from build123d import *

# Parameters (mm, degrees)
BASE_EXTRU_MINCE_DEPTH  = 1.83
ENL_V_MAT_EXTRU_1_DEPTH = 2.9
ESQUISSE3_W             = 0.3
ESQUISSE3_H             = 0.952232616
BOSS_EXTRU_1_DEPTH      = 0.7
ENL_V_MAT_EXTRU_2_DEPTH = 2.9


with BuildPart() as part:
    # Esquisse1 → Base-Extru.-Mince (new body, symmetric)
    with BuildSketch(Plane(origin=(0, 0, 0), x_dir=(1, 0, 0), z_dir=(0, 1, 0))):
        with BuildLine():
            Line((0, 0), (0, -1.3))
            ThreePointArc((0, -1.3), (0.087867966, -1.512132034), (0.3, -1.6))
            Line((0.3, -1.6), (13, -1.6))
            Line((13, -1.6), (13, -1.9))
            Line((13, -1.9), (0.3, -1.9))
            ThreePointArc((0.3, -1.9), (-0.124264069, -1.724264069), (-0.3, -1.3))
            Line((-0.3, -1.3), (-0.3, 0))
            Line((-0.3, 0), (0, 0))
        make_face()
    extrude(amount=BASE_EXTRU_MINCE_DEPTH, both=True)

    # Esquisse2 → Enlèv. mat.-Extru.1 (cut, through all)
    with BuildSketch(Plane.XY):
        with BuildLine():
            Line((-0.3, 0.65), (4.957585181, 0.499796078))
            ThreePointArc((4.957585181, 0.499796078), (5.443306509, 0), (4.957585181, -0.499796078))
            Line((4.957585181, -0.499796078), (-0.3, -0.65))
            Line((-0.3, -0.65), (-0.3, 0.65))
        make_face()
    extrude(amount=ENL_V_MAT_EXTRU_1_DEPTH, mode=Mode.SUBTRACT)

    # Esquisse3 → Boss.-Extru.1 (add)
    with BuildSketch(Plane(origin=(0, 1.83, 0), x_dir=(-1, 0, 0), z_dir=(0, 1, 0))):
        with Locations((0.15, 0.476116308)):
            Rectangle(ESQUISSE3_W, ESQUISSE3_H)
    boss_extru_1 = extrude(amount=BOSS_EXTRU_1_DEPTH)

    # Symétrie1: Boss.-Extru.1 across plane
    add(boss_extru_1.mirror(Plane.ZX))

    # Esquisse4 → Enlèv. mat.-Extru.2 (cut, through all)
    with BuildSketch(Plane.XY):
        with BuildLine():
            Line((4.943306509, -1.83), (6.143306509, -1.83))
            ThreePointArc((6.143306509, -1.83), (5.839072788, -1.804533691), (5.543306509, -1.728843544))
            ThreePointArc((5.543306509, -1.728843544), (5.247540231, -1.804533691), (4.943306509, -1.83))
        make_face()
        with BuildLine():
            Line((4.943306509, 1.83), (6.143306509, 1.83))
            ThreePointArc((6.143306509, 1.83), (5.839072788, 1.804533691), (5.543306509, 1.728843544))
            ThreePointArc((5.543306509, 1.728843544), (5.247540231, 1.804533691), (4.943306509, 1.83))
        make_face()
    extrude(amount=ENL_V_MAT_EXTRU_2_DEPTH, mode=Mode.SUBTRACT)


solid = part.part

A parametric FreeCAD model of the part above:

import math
import FreeCAD as App
import Part
import Sketcher
from FreeCAD import Vector


def add_polygon(sketch, points):
    """Adds a closed chain of lines whose ends are joined by coincident constraints."""
    first, n = sketch.GeometryCount, len(points)
    for a, b in zip(points, points[1:] + points[:1]):
        sketch.addGeometry(Part.LineSegment(App.Vector(*a, 0), App.Vector(*b, 0)), False)
    for i in range(n):
        sketch.addConstraint(Sketcher.Constraint("Coincident", first + i, 2, first + (i + 1) % n, 1))

doc = App.newDocument("Part")
body = doc.addObject("PartDesign::Body", "Body")

# Sketch on XZ plane
sketch1 = doc.addObject("Sketcher::SketchObject", "Sketch")
body.addObject(sketch1)
sketch1.AttachmentSupport = (doc.XZ_Plane, [""])
sketch1.MapMode = "FlatFace"
sketch1.addGeometry([
    Part.LineSegment(Vector(0, 1.3, 0), Vector(0, 0, 0)),  # 0
    Part.LineSegment(Vector(0, 0, 0), Vector(-0.3, 0, 0)),  # 1
    Part.LineSegment(Vector(-0.3, 0, 0), Vector(-0.3, 1.3, 0)),  # 2
    Part.ArcOfCircle(Part.Circle(Vector(0.3, 1.3, 0), Vector(0, 0, 1), 0.6), math.radians(90), math.radians(180)),  # 3
    Part.LineSegment(Vector(0.3, 1.9, 0), Vector(13, 1.9, 0)),  # 4
    Part.LineSegment(Vector(13, 1.9, 0), Vector(13, 1.6, 0)),  # 5
    Part.LineSegment(Vector(13, 1.6, 0), Vector(0.3, 1.6, 0)),  # 6
    Part.ArcOfCircle(Part.Circle(Vector(0.3, 1.3, 0), Vector(0, 0, 1), 0.3), math.radians(90), math.radians(180)),  # 7
], False)
sketch1.addConstraint([
    Sketcher.Constraint("Coincident", 0, 2, 1, 1),
    Sketcher.Constraint("Coincident", 1, 2, 2, 1),
    Sketcher.Constraint("Tangent", 2, 2, 3, 2),
    Sketcher.Constraint("Tangent", 3, 1, 4, 1),
    Sketcher.Constraint("Coincident", 4, 2, 5, 1),
    Sketcher.Constraint("Coincident", 5, 2, 6, 1),
    Sketcher.Constraint("Tangent", 6, 2, 7, 1),
    Sketcher.Constraint("Tangent", 7, 2, 0, 1),
    Sketcher.Constraint("Vertical", 0),
    Sketcher.Constraint("Horizontal", 1),
    Sketcher.Constraint("Vertical", 2),
    Sketcher.Constraint("Horizontal", 4),
    Sketcher.Constraint("Vertical", 5),
    Sketcher.Constraint("Horizontal", 6),
    Sketcher.Constraint("Coincident", 0, 2, -1, 1),
    Sketcher.Constraint("Coincident", 7, 3, 3, 3),
    Sketcher.Constraint("Radius", 3, 0.6),
    Sketcher.Constraint("Radius", 7, 0.3),
    Sketcher.Constraint("DistanceX", 4, 1, 4, 2, 12.7),
    Sketcher.Constraint("DistanceY", 0, 2, 0, 1, 1.3),
])
pad1 = doc.addObject("PartDesign::Pad", "Pad")
body.addObject(pad1)
pad1.Profile = sketch1
pad1.Length = 3.66
pad1.Midplane = True

# Sketch on XY plane
sketch2 = doc.addObject("Sketcher::SketchObject", "Sketch001")
body.addObject(sketch2)
sketch2.AttachmentSupport = (doc.XY_Plane, [""])
sketch2.MapMode = "FlatFace"
sketch2.addGeometry([
    Part.LineSegment(Vector(5, 0.5, 0), Vector(-0.3, 0.7, 0)),
    Part.LineSegment(Vector(-0.3, 0.7, 0), Vector(-0.3, -0.7, 0)),
    Part.LineSegment(Vector(-0.3, -0.7, 0), Vector(5, -0.5, 0)),
    Part.ArcOfCircle(Part.Circle(Vector(4.9, 0, 0), Vector(0, 0, 1), 0.5), math.radians(-88), math.radians(88)),
], False)
sketch2.addConstraint([
    Sketcher.Constraint("Coincident", 0, 2, 1, 1),
    Sketcher.Constraint("Coincident", 1, 2, 2, 1),
    Sketcher.Constraint("Tangent", 2, 2, 3, 1),
    Sketcher.Constraint("Tangent", 3, 2, 0, 1),
    Sketcher.Constraint("Vertical", 1),
    Sketcher.Constraint("Symmetric", 2, 2, 3, 2, -1),
    Sketcher.Constraint("Radius", 3, 0.5),
    Sketcher.Constraint("DistanceY", 1, 2, 1, 1, 1.3),
    Sketcher.Constraint("DistanceX", 0, 2, -1, 1, 0.3),
    Sketcher.Constraint("Distance", 0, 5.25973),
])
pocket1 = doc.addObject("PartDesign::Pocket", "Pocket")
body.addObject(pocket1)
pocket1.Profile = sketch2
pocket1.Type = "ThroughAll"
pocket1.Reversed = True

# Sketch on XZ plane
sketch3 = doc.addObject("Sketcher::SketchObject", "Sketch002")
body.addObject(sketch3)
sketch3.AttachmentSupport = (doc.XZ_Plane, [""])
sketch3.MapMode = "FlatFace"
sketch3.AttachmentOffset = App.Placement(Vector(0, 0, -1.83), App.Rotation())
add_polygon(sketch3, [(0, 0.95), (0, 0), (-0.3, 0), (-0.3, 0.95)])  # lines 0-3
sketch3.addConstraint([
    Sketcher.Constraint("Vertical", 0),
    Sketcher.Constraint("Horizontal", 1),
    Sketcher.Constraint("Vertical", 2),
    Sketcher.Constraint("Horizontal", 3),
    Sketcher.Constraint("Coincident", 0, 2, -1, 1),
    Sketcher.Constraint("DistanceX", 1, 2, 1, 1, 0.3),
    Sketcher.Constraint("DistanceY", 0, 2, 0, 1, 0.952233),
])
pad2 = doc.addObject("PartDesign::Pad", "Pad001")
body.addObject(pad2)
pad2.Profile = sketch3
pad2.Length = 0.7
pad2.Reversed = True
doc.recompute()

mirrored = doc.addObject("PartDesign::Mirrored", "Mirrored")
body.addObject(mirrored)
mirrored.Originals = [pad2]
mirrored.MirrorPlane = (doc.XZ_Plane, [""])
body.Tip = mirrored

# Sketch on XY plane
sketch4 = doc.addObject("Sketcher::SketchObject", "Sketch003")
body.addObject(sketch4)
sketch4.AttachmentSupport = (doc.XY_Plane, [""])
sketch4.MapMode = "FlatFace"
sketch4.addGeometry([
    Part.LineSegment(Vector(4.9, -1.8, 0), Vector(6.1, -1.8, 0)),  # 0
    Part.ArcOfCircle(Part.Circle(Vector(6.1, 0, 0), Vector(0, 0, 1), 1.8), math.radians(-109.14), math.radians(-90)),  # 1
    Part.ArcOfCircle(Part.Circle(Vector(4.9, 0, 0), Vector(0, 0, 1), 1.8), math.radians(-90), math.radians(-70.86)),  # 2
    Part.LineSegment(Vector(6.1, 1.8, 0), Vector(4.9, 1.8, 0)),  # 3
    Part.ArcOfCircle(Part.Circle(Vector(4.9, 0, 0), Vector(0, 0, 1), 1.8), math.radians(70.86), math.radians(90)),  # 4
    Part.ArcOfCircle(Part.Circle(Vector(6.1, 0, 0), Vector(0, 0, 1), 1.8), math.radians(90), math.radians(109.14)),  # 5
], False)
sketch4.addConstraint([
    Sketcher.Constraint("Tangent", 0, 2, 1, 2),
    Sketcher.Constraint("Coincident", 1, 1, 2, 2),
    Sketcher.Constraint("Tangent", 2, 1, 0, 1),
    Sketcher.Constraint("Tangent", 3, 2, 4, 2),
    Sketcher.Constraint("Coincident", 4, 1, 5, 2),
    Sketcher.Constraint("Tangent", 5, 1, 3, 1),
    Sketcher.Constraint("Horizontal", 0),
    Sketcher.Constraint("Horizontal", 3),
    Sketcher.Constraint("Coincident", 4, 3, 2, 3),
    Sketcher.Constraint("Coincident", 5, 3, 1, 3),
    Sketcher.Constraint("Equal", 1, 2),
    Sketcher.Constraint("Equal", 2, 4),
    Sketcher.Constraint("PointOnObject", 1, 3, -1),
    Sketcher.Constraint("Radius", 1, 1.83),
    Sketcher.Constraint("DistanceX", 0, 1, 0, 2, 1.2),
    Sketcher.Constraint("DistanceX", -1, 1, 1, 3, 6.143307),
])
pocket2 = doc.addObject("PartDesign::Pocket", "Pocket001")
body.addObject(pocket2)
pocket2.Profile = sketch4
pocket2.Type = "ThroughAll"
pocket2.Reversed = True

doc.recompute()
